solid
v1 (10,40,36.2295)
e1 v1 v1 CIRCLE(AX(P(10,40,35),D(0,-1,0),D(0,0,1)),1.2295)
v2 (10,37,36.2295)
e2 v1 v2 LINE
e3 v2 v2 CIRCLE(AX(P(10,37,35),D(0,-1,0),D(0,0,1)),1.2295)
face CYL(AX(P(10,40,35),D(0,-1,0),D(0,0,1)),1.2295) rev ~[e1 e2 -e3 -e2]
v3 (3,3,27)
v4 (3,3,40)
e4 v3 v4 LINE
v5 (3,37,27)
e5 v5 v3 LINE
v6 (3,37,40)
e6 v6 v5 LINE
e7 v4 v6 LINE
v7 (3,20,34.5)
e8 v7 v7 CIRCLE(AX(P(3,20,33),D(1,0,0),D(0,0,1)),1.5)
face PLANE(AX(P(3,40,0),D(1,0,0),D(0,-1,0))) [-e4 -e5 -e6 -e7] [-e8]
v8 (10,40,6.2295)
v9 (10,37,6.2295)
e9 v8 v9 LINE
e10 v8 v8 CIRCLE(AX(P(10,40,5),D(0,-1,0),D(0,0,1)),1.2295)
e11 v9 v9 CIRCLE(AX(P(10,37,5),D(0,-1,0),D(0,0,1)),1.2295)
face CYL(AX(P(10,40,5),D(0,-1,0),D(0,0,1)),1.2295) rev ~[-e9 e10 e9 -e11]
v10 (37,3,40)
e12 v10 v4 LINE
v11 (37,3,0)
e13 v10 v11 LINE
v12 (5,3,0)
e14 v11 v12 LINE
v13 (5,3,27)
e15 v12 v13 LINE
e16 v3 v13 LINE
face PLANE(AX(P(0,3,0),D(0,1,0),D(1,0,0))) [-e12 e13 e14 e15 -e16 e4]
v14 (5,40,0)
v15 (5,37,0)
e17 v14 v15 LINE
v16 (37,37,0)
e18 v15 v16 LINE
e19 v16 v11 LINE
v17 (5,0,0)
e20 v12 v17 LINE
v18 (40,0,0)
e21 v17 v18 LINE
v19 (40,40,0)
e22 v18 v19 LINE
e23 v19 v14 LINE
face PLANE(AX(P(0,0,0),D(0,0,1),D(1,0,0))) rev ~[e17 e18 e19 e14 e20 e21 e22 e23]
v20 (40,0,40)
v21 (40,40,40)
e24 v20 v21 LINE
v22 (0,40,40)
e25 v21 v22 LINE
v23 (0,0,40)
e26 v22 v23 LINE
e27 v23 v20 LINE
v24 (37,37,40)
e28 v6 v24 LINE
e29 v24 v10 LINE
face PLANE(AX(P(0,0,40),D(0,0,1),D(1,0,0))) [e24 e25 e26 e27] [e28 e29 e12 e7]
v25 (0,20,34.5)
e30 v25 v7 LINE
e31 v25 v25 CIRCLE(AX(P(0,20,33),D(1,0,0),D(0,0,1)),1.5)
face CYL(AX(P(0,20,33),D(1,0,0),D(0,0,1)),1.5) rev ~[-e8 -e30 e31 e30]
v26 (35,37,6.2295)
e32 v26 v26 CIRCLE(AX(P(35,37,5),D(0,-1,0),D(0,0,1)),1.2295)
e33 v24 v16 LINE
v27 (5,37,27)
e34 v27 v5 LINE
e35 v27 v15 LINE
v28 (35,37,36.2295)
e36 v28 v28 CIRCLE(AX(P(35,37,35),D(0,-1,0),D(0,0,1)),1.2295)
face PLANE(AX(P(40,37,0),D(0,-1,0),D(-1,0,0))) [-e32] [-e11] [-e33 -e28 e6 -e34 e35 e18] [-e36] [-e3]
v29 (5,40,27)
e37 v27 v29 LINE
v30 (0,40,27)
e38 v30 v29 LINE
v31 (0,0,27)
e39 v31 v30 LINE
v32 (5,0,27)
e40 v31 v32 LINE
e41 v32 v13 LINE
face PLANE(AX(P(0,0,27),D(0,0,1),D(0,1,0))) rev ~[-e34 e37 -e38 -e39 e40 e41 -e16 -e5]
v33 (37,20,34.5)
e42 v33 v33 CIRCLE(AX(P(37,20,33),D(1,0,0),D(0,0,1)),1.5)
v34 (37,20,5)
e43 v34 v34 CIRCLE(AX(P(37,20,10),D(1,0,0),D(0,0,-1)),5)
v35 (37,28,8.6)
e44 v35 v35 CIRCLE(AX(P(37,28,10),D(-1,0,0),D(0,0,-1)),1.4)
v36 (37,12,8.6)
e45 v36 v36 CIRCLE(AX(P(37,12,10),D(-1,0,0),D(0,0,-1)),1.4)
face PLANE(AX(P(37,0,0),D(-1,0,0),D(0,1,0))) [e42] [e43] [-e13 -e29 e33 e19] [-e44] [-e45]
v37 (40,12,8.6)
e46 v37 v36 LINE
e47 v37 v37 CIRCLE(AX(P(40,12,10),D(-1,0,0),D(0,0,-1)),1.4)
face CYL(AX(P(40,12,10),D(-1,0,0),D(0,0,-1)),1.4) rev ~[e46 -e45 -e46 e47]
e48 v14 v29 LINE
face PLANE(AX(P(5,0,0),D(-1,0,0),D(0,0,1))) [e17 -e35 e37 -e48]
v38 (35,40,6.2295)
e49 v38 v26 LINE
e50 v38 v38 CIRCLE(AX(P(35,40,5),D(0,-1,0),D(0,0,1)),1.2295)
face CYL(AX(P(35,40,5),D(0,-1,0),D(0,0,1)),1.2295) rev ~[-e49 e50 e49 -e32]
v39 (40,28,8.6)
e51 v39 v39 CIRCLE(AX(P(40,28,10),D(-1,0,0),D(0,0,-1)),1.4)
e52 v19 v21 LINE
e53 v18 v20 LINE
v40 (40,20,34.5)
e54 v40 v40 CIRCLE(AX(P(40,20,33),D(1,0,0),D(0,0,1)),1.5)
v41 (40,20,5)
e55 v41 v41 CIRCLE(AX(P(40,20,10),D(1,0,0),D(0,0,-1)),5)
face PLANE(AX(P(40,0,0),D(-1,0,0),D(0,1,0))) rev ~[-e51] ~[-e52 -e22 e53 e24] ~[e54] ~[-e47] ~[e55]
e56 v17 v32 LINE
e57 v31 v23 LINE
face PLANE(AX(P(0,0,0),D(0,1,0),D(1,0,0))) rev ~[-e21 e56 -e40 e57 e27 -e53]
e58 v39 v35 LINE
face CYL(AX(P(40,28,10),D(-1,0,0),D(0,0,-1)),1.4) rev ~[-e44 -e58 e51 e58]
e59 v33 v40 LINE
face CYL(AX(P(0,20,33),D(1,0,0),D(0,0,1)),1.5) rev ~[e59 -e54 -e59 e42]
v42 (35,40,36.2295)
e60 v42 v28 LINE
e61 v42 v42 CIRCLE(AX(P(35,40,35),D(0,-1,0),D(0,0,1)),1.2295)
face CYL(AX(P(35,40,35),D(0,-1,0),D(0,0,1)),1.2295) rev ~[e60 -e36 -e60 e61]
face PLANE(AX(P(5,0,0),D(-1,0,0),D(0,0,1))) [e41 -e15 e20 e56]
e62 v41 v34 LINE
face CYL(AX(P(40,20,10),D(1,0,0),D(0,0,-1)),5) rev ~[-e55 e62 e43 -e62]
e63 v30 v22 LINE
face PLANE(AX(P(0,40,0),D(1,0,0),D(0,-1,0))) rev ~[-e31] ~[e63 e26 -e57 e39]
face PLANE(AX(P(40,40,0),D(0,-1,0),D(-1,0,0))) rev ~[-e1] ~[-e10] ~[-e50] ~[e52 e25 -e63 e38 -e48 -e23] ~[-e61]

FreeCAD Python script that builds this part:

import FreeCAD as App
import Part
import Sketcher
Q = App.Units.Quantity


def faces_at(feature, points):
    """Names of the faces that lie closest to the given points."""
    faces = feature.Shape.Faces
    near = lambda p: min(range(len(faces)), key=lambda i: faces[i].distToShape(Part.Vertex(*p))[0])
    return sorted({f"Face{near(p) + 1}" for p in points})


def add_polygon(sketch, points):
    """Adds a closed chain of lines whose ends are joined by coincident constraints."""
    first, n = sketch.GeometryCount, len(points)
    for a, b in zip(points, points[1:] + points[:1]):
        sketch.addGeometry(Part.LineSegment(App.Vector(*a, 0), App.Vector(*b, 0)), False)
    for i in range(n):
        sketch.addConstraint(Sketcher.Constraint("Coincident", first + i, 2, first + (i + 1) % n, 1))

doc = App.newDocument("Part")
body = doc.addObject("PartDesign::Body", "Body")

sketch1 = body.newObject("Sketcher::SketchObject", "Sketch")
sketch1.AttachmentSupport = (doc.getObject("XY_Plane"), [""])
sketch1.MapMode = "FlatFace"
add_polygon(sketch1, [(0, 40), (0, 0), (40, 0), (40, 40)])
sketch1.addConstraint([
    Sketcher.Constraint("Vertical", 0),
    Sketcher.Constraint("Horizontal", 1),
    Sketcher.Constraint("Vertical", 2),
    Sketcher.Constraint("Horizontal", 3),
    Sketcher.Constraint("Coincident", 0, 2, -1, 1),
    Sketcher.Constraint("Equal", 3, 0),
    Sketcher.Constraint("DistanceX", 1, 1, 1, 2, Q("40 mm")),
])
pad1 = body.newObject("PartDesign::Pad", "Pad")
pad1.Profile = sketch1
pad1.Length = 40
doc.recompute()

thickness = body.newObject("PartDesign::Thickness", "Thickness")
thickness.Base = (pad1, faces_at(pad1, [(26.667, 13.333, 0), (26.667, 13.333, 40)]))
thickness.Value = 3
thickness.Reversed = True
thickness.Join = "Intersection"

sketch2 = body.newObject("Sketcher::SketchObject", "Sketch001")
sketch2.AttachmentSupport = (doc.getObject("YZ_Plane"), [""])
sketch2.MapMode = "FlatFace"
add_polygon(sketch2, [(40, 27), (40, 0), (0, 0), (0, 27)])
sketch2.addConstraint([
    Sketcher.Constraint("Vertical", 0),
    Sketcher.Constraint("Horizontal", 1),
    Sketcher.Constraint("Vertical", 2),
    Sketcher.Constraint("Horizontal", 3),
    Sketcher.Constraint("Coincident", 1, 2, -1, 1),
    Sketcher.Constraint("DistanceY", 0, 2, 0, 1, Q("27 mm")),
    Sketcher.Constraint("DistanceX", 1, 2, 1, 1, Q("40 mm")),
])
pocket1 = body.newObject("PartDesign::Pocket", "Pocket")
pocket1.Profile = sketch2
pocket1.Length = 5
pocket1.Reversed = True

sketch3 = body.newObject("Sketcher::SketchObject", "Sketch002")
sketch3.AttachmentSupport = (doc.getObject("YZ_Plane"), [""])
sketch3.MapMode = "FlatFace"
sketch3.addGeometry(Part.Circle(App.Vector(20, 33, 0), App.Vector(0, 0, 1), 1.5), False)
sketch3.addConstraint([
    Sketcher.Constraint("Diameter", 0, Q("3 mm")),
    Sketcher.Constraint("DistanceX", -1, 1, 0, 3, Q("20 mm")),
    Sketcher.Constraint("DistanceY", -1, 1, 0, 3, Q("33 mm")),
])
doc.recompute()
hole = body.newObject("PartDesign::Hole", "Hole")
hole.Profile = sketch3
hole.ThreadType = "None"
hole.Diameter = 3
hole.DepthType = "ThroughAll"
hole.Reversed = True

sketch4 = body.newObject("Sketcher::SketchObject", "Sketch003")
sketch4.AttachmentSupport = (doc.getObject("XZ_Plane"), [""])
sketch4.MapMode = "FlatFace"
sketch4.AttachmentOffset = App.Placement(App.Vector(0, 0, -40), App.Rotation())
sketch4.addGeometry([
    Part.Circle(App.Vector(10, 5, 0), App.Vector(0, 0, 1), 1.2),
    Part.Circle(App.Vector(35, 5, 0), App.Vector(0, 0, 1), 1.2),
    Part.Circle(App.Vector(35, 35, 0), App.Vector(0, 0, 1), 1.2),
    Part.Circle(App.Vector(10, 35, 0), App.Vector(0, 0, 1), 1.2),
], False)
sketch4.addConstraint([
    Sketcher.Constraint("Equal", 0, 1),
    Sketcher.Constraint("Equal", 1, 2),
    Sketcher.Constraint("Equal", 2, 3),
    Sketcher.Constraint("Horizontal", 0, 3, 1, 3),
    Sketcher.Constraint("Horizontal", 2, 3, 3, 3),
    Sketcher.Constraint("Vertical", 1, 3, 2, 3),
    Sketcher.Constraint("Vertical", 0, 3, 3, 3),
    Sketcher.Constraint("Diameter", 0, Q("2.459 mm")),
    Sketcher.Constraint("DistanceX", -1, 1, 0, 3, Q("10 mm")),
    Sketcher.Constraint("DistanceY", -1, 1, 0, 3, Q("5 mm")),
    Sketcher.Constraint("DistanceX", -1, 1, 1, 3, Q("35 mm")),
    Sketcher.Constraint("DistanceY", -1, 1, 2, 3, Q("35 mm")),
])
doc.recompute()
hole2 = body.newObject("PartDesign::Hole", "Hole001")
hole2.Profile = sketch4
hole2.ThreadType = "None"
hole2.Diameter = 2.459
hole2.DepthType = "Dimension"
hole2.Depth = 3
hole2.DrillPoint = "Flat"
hole2.Reversed = True

sketch5 = body.newObject("Sketcher::SketchObject", "Sketch004")
sketch5.AttachmentSupport = (doc.getObject("YZ_Plane"), [""])
sketch5.MapMode = "FlatFace"
sketch5.AttachmentOffset = App.Placement(App.Vector(0, 0, 40), App.Rotation())
sketch5.addGeometry([
    Part.Circle(App.Vector(28, 10, 0), App.Vector(0, 0, 1), 1.4),
    Part.Circle(App.Vector(12, 10, 0), App.Vector(0, 0, 1), 1.4),
], False)
sketch5.addConstraint([
    Sketcher.Constraint("Equal", 0, 1),
    Sketcher.Constraint("Horizontal", 0, 3, 1, 3),
    Sketcher.Constraint("Diameter", 0, Q("2.8 mm")),
    Sketcher.Constraint("DistanceX", -1, 1, 0, 3, Q("28 mm")),
    Sketcher.Constraint("DistanceY", -1, 1, 0, 3, Q("10 mm")),
    Sketcher.Constraint("DistanceX", -1, 1, 1, 3, Q("12 mm")),
])
doc.recompute()
hole3 = body.newObject("PartDesign::Hole", "Hole002")
hole3.Profile = sketch5
hole3.ThreadType = "None"
hole3.Diameter = 2.8
hole3.DepthType = "Dimension"
hole3.Depth = 3
hole3.DrillPoint = "Flat"

sketch6 = body.newObject("Sketcher::SketchObject", "Sketch005")
sketch6.AttachmentSupport = (doc.getObject("YZ_Plane"), [""])
sketch6.MapMode = "FlatFace"
sketch6.AttachmentOffset = App.Placement(App.Vector(0, 0, 40), App.Rotation())
sketch6.addGeometry(Part.Circle(App.Vector(20, 10, 0), App.Vector(0, 0, 1), 5), False)
sketch6.addConstraint([
    Sketcher.Constraint("Diameter", 0, Q("10 mm")),
    Sketcher.Constraint("DistanceX", -1, 1, 0, 3, Q("20 mm")),
    Sketcher.Constraint("DistanceY", -1, 1, 0, 3, Q("10 mm")),
])
pocket2 = body.newObject("PartDesign::Pocket", "Pocket001")
pocket2.Profile = sketch6
pocket2.Length = 5

doc.recompute()
